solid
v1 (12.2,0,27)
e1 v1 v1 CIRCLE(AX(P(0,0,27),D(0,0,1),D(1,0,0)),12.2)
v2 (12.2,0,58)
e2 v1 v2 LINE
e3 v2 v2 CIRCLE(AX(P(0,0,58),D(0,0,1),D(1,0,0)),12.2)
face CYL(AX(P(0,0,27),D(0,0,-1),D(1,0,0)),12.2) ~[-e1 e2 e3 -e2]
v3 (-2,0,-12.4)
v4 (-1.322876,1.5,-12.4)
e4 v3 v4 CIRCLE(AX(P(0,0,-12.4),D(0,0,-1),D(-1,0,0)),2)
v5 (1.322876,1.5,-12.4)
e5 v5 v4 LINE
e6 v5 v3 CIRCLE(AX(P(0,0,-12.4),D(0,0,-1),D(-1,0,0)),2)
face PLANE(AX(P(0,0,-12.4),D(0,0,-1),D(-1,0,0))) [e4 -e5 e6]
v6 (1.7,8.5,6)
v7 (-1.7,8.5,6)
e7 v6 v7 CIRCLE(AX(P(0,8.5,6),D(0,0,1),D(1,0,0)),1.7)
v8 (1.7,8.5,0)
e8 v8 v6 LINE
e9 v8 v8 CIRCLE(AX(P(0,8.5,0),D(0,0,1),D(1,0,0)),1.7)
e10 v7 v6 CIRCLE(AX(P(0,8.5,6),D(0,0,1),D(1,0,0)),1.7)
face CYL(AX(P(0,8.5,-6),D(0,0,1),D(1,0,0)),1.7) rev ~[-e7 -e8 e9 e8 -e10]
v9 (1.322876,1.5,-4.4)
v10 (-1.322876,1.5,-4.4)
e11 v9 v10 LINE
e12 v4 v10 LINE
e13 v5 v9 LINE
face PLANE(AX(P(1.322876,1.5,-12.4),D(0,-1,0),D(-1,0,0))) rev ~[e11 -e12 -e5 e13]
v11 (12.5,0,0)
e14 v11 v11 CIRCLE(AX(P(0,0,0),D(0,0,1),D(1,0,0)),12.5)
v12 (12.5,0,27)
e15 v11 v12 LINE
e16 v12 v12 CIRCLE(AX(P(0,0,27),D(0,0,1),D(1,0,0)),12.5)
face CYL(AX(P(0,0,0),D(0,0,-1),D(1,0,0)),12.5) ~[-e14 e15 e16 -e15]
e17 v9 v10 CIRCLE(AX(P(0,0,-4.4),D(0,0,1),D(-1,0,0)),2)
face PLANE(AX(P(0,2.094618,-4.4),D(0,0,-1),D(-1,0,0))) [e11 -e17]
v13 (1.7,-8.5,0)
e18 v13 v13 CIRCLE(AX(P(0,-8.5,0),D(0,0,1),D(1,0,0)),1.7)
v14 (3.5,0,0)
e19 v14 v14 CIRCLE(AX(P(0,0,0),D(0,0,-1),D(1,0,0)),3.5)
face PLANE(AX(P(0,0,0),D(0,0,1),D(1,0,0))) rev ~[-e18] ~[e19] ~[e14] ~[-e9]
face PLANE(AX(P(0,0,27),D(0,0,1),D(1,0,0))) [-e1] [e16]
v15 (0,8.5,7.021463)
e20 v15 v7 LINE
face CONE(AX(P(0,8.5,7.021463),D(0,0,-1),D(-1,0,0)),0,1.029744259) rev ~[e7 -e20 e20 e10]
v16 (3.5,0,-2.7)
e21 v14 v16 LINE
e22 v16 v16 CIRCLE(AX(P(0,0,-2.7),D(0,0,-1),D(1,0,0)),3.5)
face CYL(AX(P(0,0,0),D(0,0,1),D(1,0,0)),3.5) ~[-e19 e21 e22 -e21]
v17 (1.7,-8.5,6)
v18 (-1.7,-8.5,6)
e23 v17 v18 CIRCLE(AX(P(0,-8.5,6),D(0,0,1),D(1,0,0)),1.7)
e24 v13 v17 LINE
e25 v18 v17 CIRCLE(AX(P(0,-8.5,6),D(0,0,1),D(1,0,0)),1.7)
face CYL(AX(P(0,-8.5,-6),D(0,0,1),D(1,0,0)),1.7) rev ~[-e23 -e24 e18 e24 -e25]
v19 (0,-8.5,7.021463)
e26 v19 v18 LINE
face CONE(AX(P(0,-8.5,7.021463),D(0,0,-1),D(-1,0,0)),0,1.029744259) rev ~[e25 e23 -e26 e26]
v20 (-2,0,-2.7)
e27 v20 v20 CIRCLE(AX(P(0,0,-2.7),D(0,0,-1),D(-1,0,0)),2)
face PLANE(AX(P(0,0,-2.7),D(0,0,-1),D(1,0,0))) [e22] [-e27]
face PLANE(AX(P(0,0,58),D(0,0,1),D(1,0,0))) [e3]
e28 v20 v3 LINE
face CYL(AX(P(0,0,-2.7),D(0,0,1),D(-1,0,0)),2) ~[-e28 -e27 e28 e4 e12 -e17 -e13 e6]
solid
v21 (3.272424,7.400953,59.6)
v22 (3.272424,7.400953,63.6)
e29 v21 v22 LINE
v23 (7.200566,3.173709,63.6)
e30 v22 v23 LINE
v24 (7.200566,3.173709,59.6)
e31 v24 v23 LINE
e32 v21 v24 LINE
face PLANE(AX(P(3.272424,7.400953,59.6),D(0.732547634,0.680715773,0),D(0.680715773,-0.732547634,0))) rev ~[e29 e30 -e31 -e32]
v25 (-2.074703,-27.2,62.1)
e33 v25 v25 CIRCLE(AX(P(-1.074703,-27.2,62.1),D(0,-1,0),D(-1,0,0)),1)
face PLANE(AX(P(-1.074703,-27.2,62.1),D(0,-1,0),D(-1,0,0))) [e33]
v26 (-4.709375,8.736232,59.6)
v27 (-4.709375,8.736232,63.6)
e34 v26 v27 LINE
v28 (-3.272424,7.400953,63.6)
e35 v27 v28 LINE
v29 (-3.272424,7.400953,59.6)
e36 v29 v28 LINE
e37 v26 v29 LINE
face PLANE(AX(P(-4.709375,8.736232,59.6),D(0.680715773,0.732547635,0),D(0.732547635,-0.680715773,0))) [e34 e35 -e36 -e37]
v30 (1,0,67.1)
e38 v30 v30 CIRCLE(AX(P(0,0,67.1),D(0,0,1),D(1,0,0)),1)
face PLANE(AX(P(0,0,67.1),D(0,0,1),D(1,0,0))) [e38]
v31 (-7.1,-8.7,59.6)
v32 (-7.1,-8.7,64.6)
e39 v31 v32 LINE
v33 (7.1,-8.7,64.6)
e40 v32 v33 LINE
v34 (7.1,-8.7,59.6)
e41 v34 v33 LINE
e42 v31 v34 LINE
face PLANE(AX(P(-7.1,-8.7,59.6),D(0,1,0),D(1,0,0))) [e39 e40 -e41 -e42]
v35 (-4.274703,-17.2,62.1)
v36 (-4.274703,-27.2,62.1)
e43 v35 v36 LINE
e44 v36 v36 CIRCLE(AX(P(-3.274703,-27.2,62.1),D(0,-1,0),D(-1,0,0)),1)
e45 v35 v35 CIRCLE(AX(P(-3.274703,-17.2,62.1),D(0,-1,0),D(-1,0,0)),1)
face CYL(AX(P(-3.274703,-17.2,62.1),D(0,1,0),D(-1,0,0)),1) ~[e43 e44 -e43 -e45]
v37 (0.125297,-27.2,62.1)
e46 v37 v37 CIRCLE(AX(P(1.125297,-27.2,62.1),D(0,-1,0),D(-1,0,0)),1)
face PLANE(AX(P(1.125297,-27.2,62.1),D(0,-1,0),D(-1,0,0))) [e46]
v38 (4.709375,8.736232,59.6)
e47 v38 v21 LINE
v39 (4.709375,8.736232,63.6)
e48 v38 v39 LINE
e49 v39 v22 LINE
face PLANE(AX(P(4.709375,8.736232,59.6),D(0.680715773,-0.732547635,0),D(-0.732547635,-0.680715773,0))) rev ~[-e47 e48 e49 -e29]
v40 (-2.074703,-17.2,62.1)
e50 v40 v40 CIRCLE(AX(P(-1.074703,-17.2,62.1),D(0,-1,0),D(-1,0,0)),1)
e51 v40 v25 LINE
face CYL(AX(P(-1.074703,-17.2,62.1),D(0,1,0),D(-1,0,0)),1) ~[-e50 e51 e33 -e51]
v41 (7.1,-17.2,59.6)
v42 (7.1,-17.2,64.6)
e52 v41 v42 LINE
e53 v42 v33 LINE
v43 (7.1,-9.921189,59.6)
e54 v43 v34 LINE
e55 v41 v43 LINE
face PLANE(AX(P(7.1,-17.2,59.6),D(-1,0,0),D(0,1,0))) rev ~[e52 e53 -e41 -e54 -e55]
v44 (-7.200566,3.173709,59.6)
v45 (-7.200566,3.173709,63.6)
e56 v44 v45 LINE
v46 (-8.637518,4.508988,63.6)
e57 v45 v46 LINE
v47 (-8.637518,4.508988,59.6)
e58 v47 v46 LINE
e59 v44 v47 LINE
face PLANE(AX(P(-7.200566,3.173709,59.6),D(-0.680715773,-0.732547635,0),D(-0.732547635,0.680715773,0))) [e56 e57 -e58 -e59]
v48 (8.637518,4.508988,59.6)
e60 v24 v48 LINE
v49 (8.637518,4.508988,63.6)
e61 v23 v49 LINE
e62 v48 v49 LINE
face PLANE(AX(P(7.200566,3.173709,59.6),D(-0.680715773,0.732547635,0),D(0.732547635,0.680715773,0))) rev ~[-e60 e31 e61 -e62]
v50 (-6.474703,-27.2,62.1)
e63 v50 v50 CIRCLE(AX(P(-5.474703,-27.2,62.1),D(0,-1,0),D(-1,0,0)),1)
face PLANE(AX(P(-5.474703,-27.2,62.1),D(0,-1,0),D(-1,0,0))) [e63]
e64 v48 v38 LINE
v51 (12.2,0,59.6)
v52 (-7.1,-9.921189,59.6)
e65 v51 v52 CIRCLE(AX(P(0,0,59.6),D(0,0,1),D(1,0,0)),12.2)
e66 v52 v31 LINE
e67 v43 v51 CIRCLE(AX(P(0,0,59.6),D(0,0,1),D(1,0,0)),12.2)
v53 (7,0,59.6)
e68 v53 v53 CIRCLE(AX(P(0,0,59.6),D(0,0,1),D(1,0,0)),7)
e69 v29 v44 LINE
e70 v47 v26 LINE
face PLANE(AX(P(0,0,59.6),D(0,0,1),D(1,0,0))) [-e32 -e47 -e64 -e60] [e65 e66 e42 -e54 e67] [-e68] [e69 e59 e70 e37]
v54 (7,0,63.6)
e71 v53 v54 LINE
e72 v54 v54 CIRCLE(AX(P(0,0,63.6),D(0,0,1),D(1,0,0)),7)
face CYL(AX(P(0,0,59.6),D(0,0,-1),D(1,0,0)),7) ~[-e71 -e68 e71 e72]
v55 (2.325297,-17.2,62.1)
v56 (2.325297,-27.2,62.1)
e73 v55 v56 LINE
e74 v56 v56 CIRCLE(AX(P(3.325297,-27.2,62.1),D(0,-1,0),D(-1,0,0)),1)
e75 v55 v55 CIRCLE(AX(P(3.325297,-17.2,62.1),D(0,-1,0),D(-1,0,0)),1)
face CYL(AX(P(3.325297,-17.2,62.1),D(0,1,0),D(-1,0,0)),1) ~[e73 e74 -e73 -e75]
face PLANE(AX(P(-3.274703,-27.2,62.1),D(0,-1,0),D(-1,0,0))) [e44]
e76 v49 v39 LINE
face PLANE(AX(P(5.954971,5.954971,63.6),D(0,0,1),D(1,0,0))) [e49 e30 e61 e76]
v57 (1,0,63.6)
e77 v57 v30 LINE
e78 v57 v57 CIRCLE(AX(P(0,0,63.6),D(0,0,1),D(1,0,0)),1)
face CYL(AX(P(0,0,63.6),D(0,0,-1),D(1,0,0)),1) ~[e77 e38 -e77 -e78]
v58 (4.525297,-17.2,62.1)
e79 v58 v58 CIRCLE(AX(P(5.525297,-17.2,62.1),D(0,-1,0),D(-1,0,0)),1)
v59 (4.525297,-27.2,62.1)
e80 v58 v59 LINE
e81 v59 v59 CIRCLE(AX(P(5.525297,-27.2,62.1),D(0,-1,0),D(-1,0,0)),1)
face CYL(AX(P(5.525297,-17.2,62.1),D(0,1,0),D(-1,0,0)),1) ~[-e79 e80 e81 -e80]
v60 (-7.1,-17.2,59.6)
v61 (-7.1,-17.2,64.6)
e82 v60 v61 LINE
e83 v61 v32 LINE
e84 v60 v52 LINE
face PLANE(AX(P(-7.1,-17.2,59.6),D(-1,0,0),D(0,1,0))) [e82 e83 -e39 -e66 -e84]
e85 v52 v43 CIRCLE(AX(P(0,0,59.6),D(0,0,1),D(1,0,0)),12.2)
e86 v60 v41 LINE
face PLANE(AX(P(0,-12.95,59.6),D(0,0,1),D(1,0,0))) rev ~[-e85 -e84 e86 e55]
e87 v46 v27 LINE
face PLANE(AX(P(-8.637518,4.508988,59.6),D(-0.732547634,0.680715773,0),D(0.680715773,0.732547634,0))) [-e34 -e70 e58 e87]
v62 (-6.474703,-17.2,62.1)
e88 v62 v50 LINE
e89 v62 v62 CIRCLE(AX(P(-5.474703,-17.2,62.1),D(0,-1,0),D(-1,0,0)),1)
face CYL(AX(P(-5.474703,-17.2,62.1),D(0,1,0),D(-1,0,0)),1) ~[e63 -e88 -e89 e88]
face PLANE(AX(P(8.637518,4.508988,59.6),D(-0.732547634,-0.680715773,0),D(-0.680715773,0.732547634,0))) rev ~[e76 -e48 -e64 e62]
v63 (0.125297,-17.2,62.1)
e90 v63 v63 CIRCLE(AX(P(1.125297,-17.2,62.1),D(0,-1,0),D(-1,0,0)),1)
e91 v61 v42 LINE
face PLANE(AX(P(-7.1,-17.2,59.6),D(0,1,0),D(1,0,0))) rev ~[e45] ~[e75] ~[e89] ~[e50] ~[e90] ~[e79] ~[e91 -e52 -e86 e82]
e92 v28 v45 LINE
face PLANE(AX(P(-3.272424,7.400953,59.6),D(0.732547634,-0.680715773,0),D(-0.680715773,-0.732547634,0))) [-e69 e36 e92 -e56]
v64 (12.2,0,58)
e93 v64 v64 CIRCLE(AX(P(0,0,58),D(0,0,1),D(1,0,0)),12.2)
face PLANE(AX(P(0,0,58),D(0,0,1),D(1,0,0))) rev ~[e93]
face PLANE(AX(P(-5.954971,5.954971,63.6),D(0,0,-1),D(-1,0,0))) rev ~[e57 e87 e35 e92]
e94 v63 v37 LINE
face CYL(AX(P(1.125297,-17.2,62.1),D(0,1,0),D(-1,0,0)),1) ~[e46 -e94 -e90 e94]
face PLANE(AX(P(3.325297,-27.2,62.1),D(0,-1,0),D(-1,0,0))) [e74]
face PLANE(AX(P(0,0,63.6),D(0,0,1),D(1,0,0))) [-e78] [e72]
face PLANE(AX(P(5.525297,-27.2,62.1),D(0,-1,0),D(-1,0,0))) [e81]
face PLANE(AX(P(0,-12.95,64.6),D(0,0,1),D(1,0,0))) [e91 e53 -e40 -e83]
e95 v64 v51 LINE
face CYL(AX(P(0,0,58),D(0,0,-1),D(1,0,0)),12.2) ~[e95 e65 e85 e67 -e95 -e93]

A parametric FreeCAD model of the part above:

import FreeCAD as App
import Part
import Sketcher

V = App.Vector


def add_polygon(sketch, points):
    """Adds a closed chain of lines whose ends are joined by coincident constraints."""
    first, n = sketch.GeometryCount, len(points)
    for a, b in zip(points, points[1:] + points[:1]):
        sketch.addGeometry(Part.LineSegment(App.Vector(*a, 0), App.Vector(*b, 0)), False)
    for i in range(n):
        sketch.addConstraint(Sketcher.Constraint("Coincident", first + i, 2, first + (i + 1) % n, 1))

doc = App.newDocument("Part")
params = doc.addObject("Spreadsheet::Sheet", "Params")
for row, (alias, value) in enumerate([
    ("sketch1_diameter", "25 mm"),
    ("pad1_length", "27 mm"),
    ("sketch2_diameter", "7 mm"),
    ("pad2_length", "2.7 mm"),
    ("sketch3_diameter", "4 mm"),
    ("pad3_length", "9.7 mm"),
    ("pocket1_length", "8 mm"),
    ("sketch5_diameter", "3.4 mm"),
    ("hole_diameter", "3.4 mm"),
    ("hole_depth", "6 mm"),
    ("sketch6_diameter", "24.4 mm"),
    ("pad4_length", "31 mm"),
    ("sketch7_diameter", "24.4 mm"),
    ("pad5_length", "1.6 mm"),
    ("sketch8_diameter", "14 mm"),
    ("pad6_length", "4 mm"),
    ("sketch9_diameter", "2 mm"),
    ("pad7_length", "3.5 mm"),
    ("pad8_length", "4 mm"),
    ("sketch11_width", "14.2 mm"),
    ("sketch11_height", "8.5 mm"),
    ("pad9_length", "5 mm"),
    ("sketch12_diameter", "2 mm"),
    ("pad10_length", "10 mm"),
], start=1):
    params.set(f"A{row}", alias)
    params.set(f"B{row}", "=" + value)
    params.setAlias(f"B{row}", alias)

body = doc.addObject("PartDesign::Body", "Body")

# Sketch on XY plane
sketch1 = body.newObject("Sketcher::SketchObject", "Sketch")
sketch1.AttachmentSupport = (doc.getObject("XY_Plane"), [""])
sketch1.MapMode = "FlatFace"
sketch1.addGeometry(Part.Circle(V(0, 0, 0), V(0, 0, 1), 12), False)
sketch1.addConstraint(Sketcher.Constraint("Coincident", 0, 3, -1, 1))
sketch1.addConstraint(Sketcher.Constraint("Diameter", 0, 25.0))
sketch1.setExpression("Constraints[1]", "Params.sketch1_diameter")
pad1 = body.newObject("PartDesign::Pad", "Pad")
pad1.Profile = sketch1
pad1.setExpression("Length", "Params.pad1_length")

# Sketch on XY plane
sketch2 = body.newObject("Sketcher::SketchObject", "Sketch001")
sketch2.AttachmentSupport = (doc.getObject("XY_Plane"), [""])
sketch2.MapMode = "FlatFace"
sketch2.addGeometry(Part.Circle(V(0, 0, 0), V(0, 0, 1), 3.5), False)
sketch2.addConstraint(Sketcher.Constraint("Coincident", 0, 3, -1, 1))
sketch2.addConstraint(Sketcher.Constraint("Diameter", 0, 7.0))
sketch2.setExpression("Constraints[1]", "Params.sketch2_diameter")
pad2 = body.newObject("PartDesign::Pad", "Pad001")
pad2.Profile = sketch2
pad2.setExpression("Length", "Params.pad2_length")
pad2.Reversed = True

# Sketch on XY plane
sketch3 = body.newObject("Sketcher::SketchObject", "Sketch002")
sketch3.AttachmentSupport = (doc.getObject("XY_Plane"), [""])
sketch3.MapMode = "FlatFace"
sketch3.AttachmentOffset = App.Placement(V(0, 0, -2.7), App.Rotation())
sketch3.addGeometry(Part.Circle(V(0, 0, 0), V(0, 0, 1), 2), False)
sketch3.addConstraint(Sketcher.Constraint("Coincident", 0, 3, -1, 1))
sketch3.addConstraint(Sketcher.Constraint("Diameter", 0, 4.0))
sketch3.setExpression("Constraints[1]", "Params.sketch3_diameter")
pad3 = body.newObject("PartDesign::Pad", "Pad002")
pad3.Profile = sketch3
pad3.setExpression("Length", "Params.pad3_length")
pad3.Reversed = True

# Sketch on XY plane
sketch4 = body.newObject("Sketcher::SketchObject", "Sketch003")
sketch4.AttachmentSupport = (doc.getObject("XY_Plane"), [""])
sketch4.MapMode = "FlatFace"
sketch4.AttachmentOffset = App.Placement(V(0, 0, -12.4), App.Rotation())
add_polygon(sketch4, [(1.3, 2.7), (1.3, 1.5), (-1.3, 1.5), (-1.3, 2.7)])  # lines 0-3
sketch4.addConstraint(Sketcher.Constraint("Vertical", 0))
sketch4.addConstraint(Sketcher.Constraint("Horizontal", 1))
sketch4.addConstraint(Sketcher.Constraint("Vertical", 2))
sketch4.addConstraint(Sketcher.Constraint("Horizontal", 3))
sketch4.addConstraint(Sketcher.Constraint("DistanceY", -1, 1, 0, 2, 1.5))
sketch4.addConstraint(Sketcher.Constraint("DistanceX", 1, 2, 1, 1, 2.645751))
sketch4.addConstraint(Sketcher.Constraint("DistanceY", 0, 2, 0, 1, 1.189235))
sketch4.addConstraint(Sketcher.Constraint("DistanceX", -1, 1, 0, 2, 1.322876))
pocket1 = body.newObject("PartDesign::Pocket", "Pocket")
pocket1.Profile = sketch4
pocket1.setExpression("Length", "Params.pocket1_length")
pocket1.Reversed = True

# Sketch on XY plane
sketch5 = body.newObject("Sketcher::SketchObject", "Sketch004")
sketch5.AttachmentSupport = (doc.getObject("XY_Plane"), [""])
sketch5.MapMode = "FlatFace"
sketch5.addGeometry(Part.Circle(V(0, 8.5, 0), V(0, 0, 1), 1.7), False)
sketch5.addGeometry(Part.Circle(V(0, -8.5, 0), V(0, 0, 1), 1.7), False)
sketch5.addConstraint(Sketcher.Constraint("Equal", 0, 1))
sketch5.addConstraint(Sketcher.Constraint("Symmetric", 0, 3, 1, 3, -1, 1))
sketch5.addConstraint(Sketcher.Constraint("PointOnObject", 0, 3, -2))
sketch5.addConstraint(Sketcher.Constraint("Diameter", 0, 3.4))
sketch5.addConstraint(Sketcher.Constraint("DistanceY", 1, 3, 0, 3, 17.0))
sketch5.setExpression("Constraints[3]", "Params.sketch5_diameter")
doc.recompute()
hole = body.newObject("PartDesign::Hole", "Hole")
hole.Profile = sketch5
hole.ThreadType = "None"
hole.setExpression("Diameter", "Params.hole_diameter")
hole.DepthType = "Dimension"
hole.setExpression("Depth", "Params.hole_depth")
hole.DrillPoint = "Angled"
hole.DrillPointAngle = 118
hole.Reversed = True

# Sketch on XY plane
sketch6 = body.newObject("Sketcher::SketchObject", "Sketch005")
sketch6.AttachmentSupport = (doc.getObject("XY_Plane"), [""])
sketch6.MapMode = "FlatFace"
sketch6.AttachmentOffset = App.Placement(V(0, 0, 27), App.Rotation())
sketch6.addGeometry(Part.Circle(V(0, 0, 0), V(0, 0, 1), 12), False)
sketch6.addConstraint(Sketcher.Constraint("Coincident", 0, 3, -1, 1))
sketch6.addConstraint(Sketcher.Constraint("Diameter", 0, 24.4))
sketch6.setExpression("Constraints[1]", "Params.sketch6_diameter")
pad4 = body.newObject("PartDesign::Pad", "Pad003")
pad4.Profile = sketch6
pad4.setExpression("Length", "Params.pad4_length")
body2 = doc.addObject("PartDesign::Body", "Body001")

# Sketch on XY plane
sketch7 = body2.newObject("Sketcher::SketchObject", "Sketch006")
sketch7.AttachmentSupport = (doc.getObject("XY_Plane001"), [""])
sketch7.MapMode = "FlatFace"
sketch7.AttachmentOffset = App.Placement(V(0, 0, 58), App.Rotation())
sketch7.addGeometry(Part.Circle(V(0, 0, 0), V(0, 0, 1), 12), False)
sketch7.addConstraint(Sketcher.Constraint("Coincident", 0, 3, -1, 1))
sketch7.addConstraint(Sketcher.Constraint("Diameter", 0, 24.4))
sketch7.setExpression("Constraints[1]", "Params.sketch7_diameter")
pad5 = body2.newObject("PartDesign::Pad", "Pad004")
pad5.Profile = sketch7
pad5.setExpression("Length", "Params.pad5_length")

# Sketch on XY plane
sketch8 = body2.newObject("Sketcher::SketchObject", "Sketch007")
sketch8.AttachmentSupport = (doc.getObject("XY_Plane001"), [""])
sketch8.MapMode = "FlatFace"
sketch8.AttachmentOffset = App.Placement(V(0, 0, 59.6), App.Rotation())
sketch8.addGeometry(Part.Circle(V(0, 0, 0), V(0, 0, 1), 7), False)
sketch8.addConstraint(Sketcher.Constraint("Coincident", 0, 3, -1, 1))
sketch8.addConstraint(Sketcher.Constraint("Diameter", 0, 14.0))
sketch8.setExpression("Constraints[1]", "Params.sketch8_diameter")
pad6 = body2.newObject("PartDesign::Pad", "Pad005")
pad6.Profile = sketch8
pad6.setExpression("Length", "Params.pad6_length")

# Sketch on XY plane
sketch9 = body2.newObject("Sketcher::SketchObject", "Sketch008")
sketch9.AttachmentSupport = (doc.getObject("XY_Plane001"), [""])
sketch9.MapMode = "FlatFace"
sketch9.AttachmentOffset = App.Placement(V(0, 0, 63.6), App.Rotation())
sketch9.addGeometry(Part.Circle(V(0, 0, 0), V(0, 0, 1), 1), False)
sketch9.addConstraint(Sketcher.Constraint("Coincident", 0, 3, -1, 1))
sketch9.addConstraint(Sketcher.Constraint("Diameter", 0, 2.0))
sketch9.setExpression("Constraints[1]", "Params.sketch9_diameter")
pad7 = body2.newObject("PartDesign::Pad", "Pad006")
pad7.Profile = sketch9
pad7.setExpression("Length", "Params.pad7_length")

# Sketch on XY plane
sketch10 = body2.newObject("Sketcher::SketchObject", "Sketch009")
sketch10.AttachmentSupport = (doc.getObject("XY_Plane001"), [""])
sketch10.MapMode = "FlatFace"
sketch10.AttachmentOffset = App.Placement(V(0, 0, 59.6), App.Rotation())
add_polygon(sketch10, [(-4.7, 8.7), (-8.6, 4.5), (-7.2, 3.2), (-3.3, 7.4)])  # lines 0-3
add_polygon(sketch10, [(7.2, 3.2), (8.6, 4.5), (4.7, 8.7), (3.3, 7.4)])  # lines 4-7
sketch10.addConstraint(Sketcher.Constraint("Symmetric", 0, 2, 4, 2, -2))
sketch10.addConstraint(Sketcher.Constraint("Symmetric", 3, 2, 5, 2, -2))
sketch10.addConstraint(Sketcher.Constraint("Symmetric", 2, 2, 6, 2, -2))
sketch10.addConstraint(Sketcher.Constraint("Symmetric", 1, 2, 7, 2, -2))
sketch10.addConstraint(Sketcher.Constraint("Perpendicular", 0, 1))
sketch10.addConstraint(Sketcher.Constraint("Perpendicular", 1, 2))
sketch10.addConstraint(Sketcher.Constraint("Perpendicular", 2, 3))
sketch10.addConstraint(Sketcher.Constraint("DistanceX", 2, 2, 5, 2, 7.981799))
sketch10.addConstraint(Sketcher.Constraint("Distance", 1, 1.961581))
sketch10.addConstraint(Sketcher.Constraint("DistanceY", -1, 1, 0, 2, 4.508988))
sketch10.addConstraint(Sketcher.Constraint("DistanceY", -1, 1, 1, 2, 3.173709))
sketch10.addConstraint(Sketcher.Constraint("DistanceX", 1, 2, 3, 2, 2.491191))
pad8 = body2.newObject("PartDesign::Pad", "Pad007")
pad8.Profile = sketch10
pad8.setExpression("Length", "Params.pad8_length")

# Sketch on XY plane
sketch11 = body2.newObject("Sketcher::SketchObject", "Sketch010")
sketch11.AttachmentSupport = (doc.getObject("XY_Plane001"), [""])
sketch11.MapMode = "FlatFace"
sketch11.AttachmentOffset = App.Placement(V(0, 0, 59.6), App.Rotation())
add_polygon(sketch11, [(-7, -9), (-7, -17), (7, -17), (7, -9)])  # lines 0-3
sketch11.addConstraint(Sketcher.Constraint("Vertical", 0))
sketch11.addConstraint(Sketcher.Constraint("Horizontal", 1))
sketch11.addConstraint(Sketcher.Constraint("Vertical", 2))
sketch11.addConstraint(Sketcher.Constraint("Horizontal", 3))
sketch11.addConstraint(Sketcher.Constraint("DistanceX", 1, 1, 1, 2, 14.2))
sketch11.addConstraint(Sketcher.Constraint("DistanceY", 0, 2, 0, 1, 8.5))
sketch11.addConstraint(Sketcher.Constraint("DistanceX", 0, 2, -1, 1, 7.1))
sketch11.addConstraint(Sketcher.Constraint("DistanceY", 0, 2, -1, 1, 17.2))
sketch11.setExpression("Constraints[8]", "Params.sketch11_width")
sketch11.setExpression("Constraints[9]", "Params.sketch11_height")
pad9 = body2.newObject("PartDesign::Pad", "Pad008")
pad9.Profile = sketch11
pad9.setExpression("Length", "Params.pad9_length")

# Sketch on XZ plane
sketch12 = body2.newObject("Sketcher::SketchObject", "Sketch011")
sketch12.AttachmentSupport = (doc.getObject("XZ_Plane001"), [""])
sketch12.MapMode = "FlatFace"
sketch12.AttachmentOffset = App.Placement(V(0, 0, 17.2), App.Rotation())
sketch12.addGeometry(Part.Circle(V(-5.5, 62.1, 0), V(0, 0, 1), 1), False)
sketch12.addGeometry(Part.Circle(V(-3.3, 62.1, 0), V(0, 0, 1), 1), False)
sketch12.addGeometry(Part.Circle(V(-1.1, 62.1, 0), V(0, 0, 1), 1), False)
sketch12.addGeometry(Part.Circle(V(1.1, 62.1, 0), V(0, 0, 1), 1), False)
sketch12.addGeometry(Part.Circle(V(3.3, 62.1, 0), V(0, 0, 1), 1), False)
sketch12.addGeometry(Part.Circle(V(5.5, 62.1, 0), V(0, 0, 1), 1), False)
sketch12.addConstraint(Sketcher.Constraint("Equal", 0, 1))
sketch12.addConstraint(Sketcher.Constraint("Equal", 1, 2))
sketch12.addConstraint(Sketcher.Constraint("Equal", 2, 3))
sketch12.addConstraint(Sketcher.Constraint("Equal", 3, 4))
sketch12.addConstraint(Sketcher.Constraint("Equal", 4, 5))
sketch12.addConstraint(Sketcher.Constraint("Horizontal", 0, 3, 1, 3))
sketch12.addConstraint(Sketcher.Constraint("Horizontal", 1, 3, 2, 3))
sketch12.addConstraint(Sketcher.Constraint("Horizontal", 2, 3, 3, 3))
sketch12.addConstraint(Sketcher.Constraint("Horizontal", 3, 3, 4, 3))
sketch12.addConstraint(Sketcher.Constraint("Horizontal", 4, 3, 5, 3))
sketch12.addConstraint(Sketcher.Constraint("Diameter", 0, 2.0))
sketch12.addConstraint(Sketcher.Constraint("DistanceX", 0, 3, 5, 3, 11.0))
sketch12.addConstraint(Sketcher.Constraint("DistanceY", -1, 1, 0, 3, 62.1))
sketch12.addConstraint(Sketcher.Constraint("DistanceX", 0, 3, 1, 3, 2.2))
sketch12.addConstraint(Sketcher.Constraint("DistanceX", 1, 3, 2, 3, 2.2))
sketch12.addConstraint(Sketcher.Constraint("DistanceX", 2, 3, 3, 3, 2.2))
sketch12.addConstraint(Sketcher.Constraint("DistanceX", 3, 3, 4, 3, 2.2))
sketch12.addConstraint(Sketcher.Constraint("DistanceX", 0, 3, -1, 1, 5.474703))
sketch12.setExpression("Constraints[10]", "Params.sketch12_diameter")
pad10 = body2.newObject("PartDesign::Pad", "Pad009")
pad10.Profile = sketch12
pad10.setExpression("Length", "Params.pad10_length")

doc.recompute()
